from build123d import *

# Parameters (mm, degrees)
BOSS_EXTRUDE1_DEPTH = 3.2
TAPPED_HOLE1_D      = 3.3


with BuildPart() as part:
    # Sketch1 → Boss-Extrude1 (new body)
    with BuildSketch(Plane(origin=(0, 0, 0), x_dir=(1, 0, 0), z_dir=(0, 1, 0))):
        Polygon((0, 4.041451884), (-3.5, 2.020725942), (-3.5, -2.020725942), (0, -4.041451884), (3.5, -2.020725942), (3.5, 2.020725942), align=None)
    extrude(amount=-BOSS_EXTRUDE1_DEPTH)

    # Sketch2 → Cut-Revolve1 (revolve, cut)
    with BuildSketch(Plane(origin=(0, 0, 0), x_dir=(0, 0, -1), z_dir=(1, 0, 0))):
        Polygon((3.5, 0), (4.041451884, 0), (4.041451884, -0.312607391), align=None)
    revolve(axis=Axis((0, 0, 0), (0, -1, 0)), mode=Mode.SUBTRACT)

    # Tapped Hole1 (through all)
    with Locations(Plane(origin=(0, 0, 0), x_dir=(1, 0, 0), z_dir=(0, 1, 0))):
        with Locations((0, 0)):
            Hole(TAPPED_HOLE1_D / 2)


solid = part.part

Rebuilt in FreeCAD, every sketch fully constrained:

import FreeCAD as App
import Part
import Sketcher
Q = App.Units.Quantity

doc = App.newDocument("Part")
params = doc.addObject("Spreadsheet::Sheet", "Params")
for row, (alias, value) in enumerate([
    ("pad1_length", "3.2 mm"),
    ("groove_angle", "360 deg"),
    ("sketch3_diameter", "3.3 mm"),
    ("hole_diameter", "3.3 mm"),
], start=1):
    params.set(f"A{row}", alias)
    params.set(f"B{row}", "=" + value)
    params.setAlias(f"B{row}", alias)

body = doc.addObject("PartDesign::Body", "Body")

# Sketch on XZ plane
sketch1 = body.newObject("Sketcher::SketchObject", "Sketch")
sketch1.AttachmentSupport = (doc.getObject("XZ_Plane"), [""])
sketch1.MapMode = "FlatFace"
sketch1.addGeometry(Part.LineSegment(App.Vector(0, -4, 0), App.Vector(-3.5, -2, 0)), False)
sketch1.addGeometry(Part.LineSegment(App.Vector(-3.5, -2, 0), App.Vector(-3.5, 2, 0)), False)
sketch1.addGeometry(Part.LineSegment(App.Vector(-3.5, 2, 0), App.Vector(0, 4, 0)), False)
sketch1.addGeometry(Part.LineSegment(App.Vector(0, 4, 0), App.Vector(3.5, 2, 0)), False)
sketch1.addGeometry(Part.LineSegment(App.Vector(3.5, 2, 0), App.Vector(3.5, -2, 0)), False)
sketch1.addGeometry(Part.LineSegment(App.Vector(3.5, -2, 0), App.Vector(0, -4, 0)), False)
sketch1.addConstraint(Sketcher.Constraint("Coincident", 0, 2, 1, 1))
sketch1.addConstraint(Sketcher.Constraint("Coincident", 1, 2, 2, 1))
sketch1.addConstraint(Sketcher.Constraint("Coincident", 2, 2, 3, 1))
sketch1.addConstraint(Sketcher.Constraint("Coincident", 3, 2, 4, 1))
sketch1.addConstraint(Sketcher.Constraint("Coincident", 4, 2, 5, 1))
sketch1.addConstraint(Sketcher.Constraint("Coincident", 5, 2, 0, 1))
sketch1.addConstraint(Sketcher.Constraint("Vertical", 1))
sketch1.addConstraint(Sketcher.Constraint("Vertical", 4))
sketch1.addConstraint(Sketcher.Constraint("Symmetric", 0, 2, 3, 2, -1, 1))
sketch1.addConstraint(Sketcher.Constraint("Symmetric", 2, 2, 5, 2, -1, 1))
sketch1.addConstraint(Sketcher.Constraint("PointOnObject", 2, 2, -2))
sketch1.addConstraint(Sketcher.Constraint("Parallel", 2, 5))
sketch1.addConstraint(Sketcher.Constraint("Horizontal", 1, 2, 3, 2))
sketch1.addConstraint(Sketcher.Constraint("Angle", 0, Q("150 deg")))
sketch1.addConstraint(Sketcher.Constraint("DistanceX", 1, 2, 3, 2, Q("7 mm")))
sketch1.addConstraint(Sketcher.Constraint("DistanceY", 1, 1, 1, 2, Q("4.041452 mm")))
pad1 = body.newObject("PartDesign::Pad", "Pad")
pad1.Profile = sketch1
pad1.setExpression("Length", "Params.pad1_length")

# Sketch on YZ plane
sketch2 = body.newObject("Sketcher::SketchObject", "Sketch001")
sketch2.AttachmentSupport = (doc.getObject("YZ_Plane"), [""])
sketch2.MapMode = "FlatFace"
sketch2.addGeometry(Part.LineSegment(App.Vector(0, -4.04, 0), App.Vector(0, -3.5, 0)), False)
sketch2.addGeometry(Part.LineSegment(App.Vector(0, -3.5, 0), App.Vector(-0.31, -4.04, 0)), False)
sketch2.addGeometry(Part.LineSegment(App.Vector(-0.31, -4.04, 0), App.Vector(0, -4.04, 0)), False)
sketch2.addConstraint(Sketcher.Constraint("Coincident", 0, 2, 1, 1))
sketch2.addConstraint(Sketcher.Constraint("Coincident", 1, 2, 2, 1))
sketch2.addConstraint(Sketcher.Constraint("Coincident", 2, 2, 0, 1))
sketch2.addConstraint(Sketcher.Constraint("Vertical", 0))
sketch2.addConstraint(Sketcher.Constraint("Horizontal", 2))
sketch2.addConstraint(Sketcher.Constraint("PointOnObject", 0, 2, -2))
sketch2.addConstraint(Sketcher.Constraint("Angle", 1, Q("-120 deg")))
sketch2.addConstraint(Sketcher.Constraint("DistanceY", 0, 2, -1, 1, Q("3.5 mm")))
sketch2.addConstraint(Sketcher.Constraint("DistanceY", 0, 1, 0, 2, Q("0.541452 mm")))
groove = body.newObject("PartDesign::Groove", "Groove")
groove.Profile = sketch2
groove.ReferenceAxis = (sketch2, ["H_Axis"])
groove.setExpression("Angle", "Params.groove_angle")

# Sketch on XZ plane
sketch3 = body.newObject("Sketcher::SketchObject", "Sketch002")
sketch3.AttachmentSupport = (doc.getObject("XZ_Plane"), [""])
sketch3.MapMode = "FlatFace"
sketch3.addGeometry(Part.Circle(App.Vector(0, 0, 0), App.Vector(0, 0, 1), 1.6), False)
sketch3.addConstraint(Sketcher.Constraint("Coincident", 0, 3, -1, 1))
sketch3.addConstraint(Sketcher.Constraint("Diameter", 0, Q("3.3 mm")))
sketch3.setExpression("Constraints[1]", "Params.sketch3_diameter")
doc.recompute()
hole = body.newObject("PartDesign::Hole", "Hole")
hole.Profile = sketch3
hole.ThreadType = "None"
hole.setExpression("Diameter", "Params.hole_diameter")
hole.DepthType = "ThroughAll"
hole.Reversed = True

doc.recompute()
